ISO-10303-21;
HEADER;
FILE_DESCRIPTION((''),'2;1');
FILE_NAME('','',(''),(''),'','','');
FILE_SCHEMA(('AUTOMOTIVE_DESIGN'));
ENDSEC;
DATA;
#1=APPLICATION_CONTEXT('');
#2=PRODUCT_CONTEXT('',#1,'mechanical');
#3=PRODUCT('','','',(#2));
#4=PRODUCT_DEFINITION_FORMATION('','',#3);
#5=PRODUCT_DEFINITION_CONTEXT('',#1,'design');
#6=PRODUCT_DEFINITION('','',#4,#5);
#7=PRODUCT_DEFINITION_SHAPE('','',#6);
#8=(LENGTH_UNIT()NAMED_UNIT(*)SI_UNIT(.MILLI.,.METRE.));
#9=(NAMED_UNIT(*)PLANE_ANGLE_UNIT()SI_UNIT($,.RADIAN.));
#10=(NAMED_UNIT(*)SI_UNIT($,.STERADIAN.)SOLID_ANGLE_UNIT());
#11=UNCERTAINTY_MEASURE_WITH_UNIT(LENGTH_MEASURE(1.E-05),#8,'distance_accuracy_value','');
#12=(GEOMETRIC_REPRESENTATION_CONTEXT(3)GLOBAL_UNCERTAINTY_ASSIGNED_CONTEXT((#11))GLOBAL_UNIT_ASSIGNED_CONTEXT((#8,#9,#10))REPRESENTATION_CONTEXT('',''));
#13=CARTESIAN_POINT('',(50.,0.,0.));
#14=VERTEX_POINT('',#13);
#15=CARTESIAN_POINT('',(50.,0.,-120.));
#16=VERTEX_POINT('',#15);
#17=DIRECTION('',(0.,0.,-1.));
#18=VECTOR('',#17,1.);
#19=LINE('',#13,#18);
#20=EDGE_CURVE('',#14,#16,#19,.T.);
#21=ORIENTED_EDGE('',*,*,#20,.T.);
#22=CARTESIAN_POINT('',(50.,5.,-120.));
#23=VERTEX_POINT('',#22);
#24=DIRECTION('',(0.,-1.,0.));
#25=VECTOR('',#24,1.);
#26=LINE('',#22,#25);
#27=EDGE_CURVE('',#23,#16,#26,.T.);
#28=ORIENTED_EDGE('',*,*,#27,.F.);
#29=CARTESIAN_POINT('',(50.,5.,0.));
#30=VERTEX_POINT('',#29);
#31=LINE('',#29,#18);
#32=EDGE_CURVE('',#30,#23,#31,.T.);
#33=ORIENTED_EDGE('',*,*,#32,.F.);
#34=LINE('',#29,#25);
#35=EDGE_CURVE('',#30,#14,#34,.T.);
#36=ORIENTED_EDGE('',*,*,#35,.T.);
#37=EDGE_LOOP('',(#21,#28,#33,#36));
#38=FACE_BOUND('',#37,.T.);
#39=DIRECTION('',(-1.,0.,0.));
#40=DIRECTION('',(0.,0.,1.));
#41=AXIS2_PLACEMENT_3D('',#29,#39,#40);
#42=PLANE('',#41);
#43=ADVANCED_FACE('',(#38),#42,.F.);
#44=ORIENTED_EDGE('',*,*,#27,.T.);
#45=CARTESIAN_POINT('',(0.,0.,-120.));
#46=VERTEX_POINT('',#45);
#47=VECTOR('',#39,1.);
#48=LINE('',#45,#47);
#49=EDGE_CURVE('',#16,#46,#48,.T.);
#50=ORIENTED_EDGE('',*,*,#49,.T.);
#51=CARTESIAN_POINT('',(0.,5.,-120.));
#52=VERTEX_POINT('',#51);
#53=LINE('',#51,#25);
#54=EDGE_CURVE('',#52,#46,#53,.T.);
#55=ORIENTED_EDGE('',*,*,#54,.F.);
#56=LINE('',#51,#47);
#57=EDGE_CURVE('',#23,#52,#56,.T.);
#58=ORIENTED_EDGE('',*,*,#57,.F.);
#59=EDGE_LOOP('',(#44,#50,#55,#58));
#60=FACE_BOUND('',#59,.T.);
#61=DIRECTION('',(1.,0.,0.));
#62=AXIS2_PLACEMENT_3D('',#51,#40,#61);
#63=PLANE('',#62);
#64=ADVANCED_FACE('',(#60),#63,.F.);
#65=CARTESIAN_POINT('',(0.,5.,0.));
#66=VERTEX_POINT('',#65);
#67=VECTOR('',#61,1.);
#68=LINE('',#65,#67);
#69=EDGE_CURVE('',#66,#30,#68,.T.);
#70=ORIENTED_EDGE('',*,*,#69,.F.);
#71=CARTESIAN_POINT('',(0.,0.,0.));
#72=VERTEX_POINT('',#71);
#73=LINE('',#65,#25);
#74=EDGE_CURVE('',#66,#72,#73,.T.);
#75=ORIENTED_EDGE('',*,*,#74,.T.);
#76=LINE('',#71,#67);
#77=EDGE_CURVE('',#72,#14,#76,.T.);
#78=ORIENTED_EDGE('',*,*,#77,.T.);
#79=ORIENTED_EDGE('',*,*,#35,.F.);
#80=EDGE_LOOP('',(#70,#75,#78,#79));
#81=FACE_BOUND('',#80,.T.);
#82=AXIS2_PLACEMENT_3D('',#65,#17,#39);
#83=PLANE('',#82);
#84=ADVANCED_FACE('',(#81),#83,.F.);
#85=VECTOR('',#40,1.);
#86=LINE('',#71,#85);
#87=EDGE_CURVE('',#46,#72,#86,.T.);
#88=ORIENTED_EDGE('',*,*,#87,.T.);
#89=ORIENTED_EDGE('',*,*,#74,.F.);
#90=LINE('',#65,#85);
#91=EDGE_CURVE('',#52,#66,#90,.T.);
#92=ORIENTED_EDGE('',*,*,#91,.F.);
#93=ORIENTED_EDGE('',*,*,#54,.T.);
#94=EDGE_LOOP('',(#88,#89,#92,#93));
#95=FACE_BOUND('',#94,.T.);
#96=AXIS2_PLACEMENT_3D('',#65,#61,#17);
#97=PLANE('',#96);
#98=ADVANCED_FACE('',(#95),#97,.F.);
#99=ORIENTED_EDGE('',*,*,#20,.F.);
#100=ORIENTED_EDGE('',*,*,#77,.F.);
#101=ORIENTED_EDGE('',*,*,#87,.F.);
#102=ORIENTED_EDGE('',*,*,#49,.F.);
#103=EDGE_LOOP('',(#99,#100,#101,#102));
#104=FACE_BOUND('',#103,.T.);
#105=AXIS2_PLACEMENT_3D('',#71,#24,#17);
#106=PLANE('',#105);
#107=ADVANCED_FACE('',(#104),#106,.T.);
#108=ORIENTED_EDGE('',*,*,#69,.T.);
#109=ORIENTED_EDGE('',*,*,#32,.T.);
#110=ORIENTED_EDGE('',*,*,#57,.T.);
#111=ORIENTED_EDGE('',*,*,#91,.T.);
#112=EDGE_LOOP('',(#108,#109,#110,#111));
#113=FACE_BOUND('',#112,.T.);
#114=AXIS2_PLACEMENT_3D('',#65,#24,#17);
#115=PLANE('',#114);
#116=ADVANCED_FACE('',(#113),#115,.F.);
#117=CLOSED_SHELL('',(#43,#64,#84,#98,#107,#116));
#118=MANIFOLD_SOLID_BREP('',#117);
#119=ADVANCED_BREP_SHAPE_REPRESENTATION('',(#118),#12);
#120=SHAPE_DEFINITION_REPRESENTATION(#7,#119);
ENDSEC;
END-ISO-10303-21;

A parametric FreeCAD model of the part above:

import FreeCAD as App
import Part
import Sketcher

V = App.Vector


def add_polygon(sketch, points):
    """Adds a closed chain of lines whose ends are joined by coincident constraints."""
    first, n = sketch.GeometryCount, len(points)
    for a, b in zip(points, points[1:] + points[:1]):
        sketch.addGeometry(Part.LineSegment(App.Vector(*a, 0), App.Vector(*b, 0)), False)
    for i in range(n):
        sketch.addConstraint(Sketcher.Constraint("Coincident", first + i, 2, first + (i + 1) % n, 1))

doc = App.newDocument("Part")
body = doc.addObject("PartDesign::Body", "Body")

sketch1 = body.newObject("Sketcher::SketchObject", "Sketch")
sketch1.AttachmentSupport = (doc.getObject("XZ_Plane"), [""])
sketch1.MapMode = "FlatFace"
add_polygon(sketch1, [(0, -120), (0, 0), (50, 0), (50, -120)])
sketch1.addConstraint(Sketcher.Constraint("Vertical", 0))
sketch1.addConstraint(Sketcher.Constraint("Horizontal", 1))
sketch1.addConstraint(Sketcher.Constraint("Vertical", 2))
sketch1.addConstraint(Sketcher.Constraint("Horizontal", 3))
sketch1.addConstraint(Sketcher.Constraint("Coincident", 0, 2, -1, 1))
sketch1.addConstraint(Sketcher.Constraint("DistanceX", 1, 1, 1, 2, 50.0))
sketch1.addConstraint(Sketcher.Constraint("DistanceY", 0, 1, 0, 2, 120.0))
pad1 = body.newObject("PartDesign::Pad", "Pad")
pad1.Profile = sketch1
pad1.Length = 5
pad1.Reversed = True

doc.recompute()
